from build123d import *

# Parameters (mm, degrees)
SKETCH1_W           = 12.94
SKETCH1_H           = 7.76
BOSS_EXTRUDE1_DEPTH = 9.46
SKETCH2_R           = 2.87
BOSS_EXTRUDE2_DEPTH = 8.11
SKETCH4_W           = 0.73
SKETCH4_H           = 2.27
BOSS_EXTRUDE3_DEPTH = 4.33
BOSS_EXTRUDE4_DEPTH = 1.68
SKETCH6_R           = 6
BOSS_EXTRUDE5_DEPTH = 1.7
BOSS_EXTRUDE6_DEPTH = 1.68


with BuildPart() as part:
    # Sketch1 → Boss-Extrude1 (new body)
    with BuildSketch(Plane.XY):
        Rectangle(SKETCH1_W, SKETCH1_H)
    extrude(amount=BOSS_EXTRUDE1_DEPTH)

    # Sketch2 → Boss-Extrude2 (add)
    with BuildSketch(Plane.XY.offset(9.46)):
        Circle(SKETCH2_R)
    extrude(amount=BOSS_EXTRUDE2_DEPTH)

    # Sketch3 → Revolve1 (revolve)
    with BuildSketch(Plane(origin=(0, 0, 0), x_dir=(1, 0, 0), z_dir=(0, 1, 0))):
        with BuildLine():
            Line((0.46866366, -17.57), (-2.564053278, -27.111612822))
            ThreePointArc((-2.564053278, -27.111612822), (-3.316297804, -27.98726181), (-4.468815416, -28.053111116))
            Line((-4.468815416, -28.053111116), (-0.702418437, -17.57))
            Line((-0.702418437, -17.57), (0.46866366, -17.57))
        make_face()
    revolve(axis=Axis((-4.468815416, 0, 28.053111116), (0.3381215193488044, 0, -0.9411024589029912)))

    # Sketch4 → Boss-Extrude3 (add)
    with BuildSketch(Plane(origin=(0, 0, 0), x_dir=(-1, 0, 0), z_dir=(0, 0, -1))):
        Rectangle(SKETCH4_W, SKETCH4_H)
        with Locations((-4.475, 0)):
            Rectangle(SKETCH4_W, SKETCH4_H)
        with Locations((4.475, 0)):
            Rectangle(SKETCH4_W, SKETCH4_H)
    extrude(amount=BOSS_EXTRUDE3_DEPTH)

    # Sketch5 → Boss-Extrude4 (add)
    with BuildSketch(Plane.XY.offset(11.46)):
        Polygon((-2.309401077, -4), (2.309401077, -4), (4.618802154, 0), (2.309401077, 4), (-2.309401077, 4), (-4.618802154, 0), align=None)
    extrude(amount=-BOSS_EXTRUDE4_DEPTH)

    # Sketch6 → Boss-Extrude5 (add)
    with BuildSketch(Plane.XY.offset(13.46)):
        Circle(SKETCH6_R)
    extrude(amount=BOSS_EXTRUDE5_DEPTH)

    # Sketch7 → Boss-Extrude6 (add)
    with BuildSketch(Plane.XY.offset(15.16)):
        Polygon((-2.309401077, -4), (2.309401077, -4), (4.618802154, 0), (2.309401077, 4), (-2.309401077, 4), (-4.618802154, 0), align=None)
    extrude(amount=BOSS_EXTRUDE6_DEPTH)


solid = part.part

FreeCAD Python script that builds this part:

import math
import FreeCAD as App
import Part
import Sketcher

V = App.Vector
Q = App.Units.Quantity

doc = App.newDocument("Part")
body = doc.addObject("PartDesign::Body", "Body")

sketch1 = body.newObject("Sketcher::SketchObject", "Sketch")
sketch1.AttachmentSupport = (doc.getObject("XY_Plane"), [""])
sketch1.MapMode = "FlatFace"
sketch1.addGeometry(Part.LineSegment(V(-6.47, 3.88, 0), V(-6.47, -3.88, 0)), False)
sketch1.addGeometry(Part.LineSegment(V(-6.47, -3.88, 0), V(6.47, -3.88, 0)), False)
sketch1.addGeometry(Part.LineSegment(V(6.47, -3.88, 0), V(6.47, 3.88, 0)), False)
sketch1.addGeometry(Part.LineSegment(V(6.47, 3.88, 0), V(-6.47, 3.88, 0)), False)
sketch1.addConstraint(Sketcher.Constraint("Coincident", 0, 2, 1, 1))
sketch1.addConstraint(Sketcher.Constraint("Coincident", 1, 2, 2, 1))
sketch1.addConstraint(Sketcher.Constraint("Coincident", 2, 2, 3, 1))
sketch1.addConstraint(Sketcher.Constraint("Coincident", 3, 2, 0, 1))
sketch1.addConstraint(Sketcher.Constraint("Vertical", 0))
sketch1.addConstraint(Sketcher.Constraint("Horizontal", 1))
sketch1.addConstraint(Sketcher.Constraint("Vertical", 2))
sketch1.addConstraint(Sketcher.Constraint("Horizontal", 3))
sketch1.addConstraint(Sketcher.Constraint("Symmetric", 0, 2, 2, 2, -1, 1))
sketch1.addConstraint(Sketcher.Constraint("DistanceX", 1, 1, 1, 2, Q("12.94 mm")))
sketch1.addConstraint(Sketcher.Constraint("DistanceY", 0, 2, 0, 1, Q("7.76 mm")))
pad1 = body.newObject("PartDesign::Pad", "Pad")
pad1.Profile = sketch1
pad1.Length = 9.46

sketch2 = body.newObject("Sketcher::SketchObject", "Sketch001")
sketch2.AttachmentSupport = (doc.getObject("XY_Plane"), [""])
sketch2.MapMode = "FlatFace"
sketch2.AttachmentOffset = App.Placement(V(0, 0, 9.46), App.Rotation())
sketch2.addGeometry(Part.Circle(V(0, 0, 0), V(0, 0, 1), 2.87), False)
sketch2.addConstraint(Sketcher.Constraint("Coincident", 0, 3, -1, 1))
sketch2.addConstraint(Sketcher.Constraint("Diameter", 0, Q("5.74 mm")))
pad2 = body.newObject("PartDesign::Pad", "Pad001")
pad2.Profile = sketch2
pad2.Length = 8.11

sketch3 = body.newObject("Sketcher::SketchObject", "Sketch002")
sketch3.AttachmentSupport = (doc.getObject("XZ_Plane"), [""])
sketch3.MapMode = "FlatFace"
sketch3.addGeometry(Part.LineSegment(V(-2.564053, 27.111613, 0), V(0.468664, 17.57, 0)), False)
sketch3.addGeometry(Part.LineSegment(V(0.468664, 17.57, 0), V(-0.702418, 17.57, 0)), False)
sketch3.addGeometry(Part.LineSegment(V(-0.702418, 17.57, 0), V(-4.468815, 28.053111, 0)), False)
sketch3.addGeometry(Part.ArcOfCircle(Part.Circle(V(-3.97, 26.664745, 0), V(0, 0, 1), 1.475255), math.radians(17.632397), math.radians(109.762468)), False)
sketch3.addGeometry(Part.LineSegment(V(-4.468815, 28.053111, 0), V(-0.568533, 17.197353, 0)), True)
sketch3.addConstraint(Sketcher.Constraint("Coincident", 0, 2, 1, 1))
sketch3.addConstraint(Sketcher.Constraint("Coincident", 1, 2, 2, 1))
sketch3.addConstraint(Sketcher.Constraint("Coincident", 2, 2, 3, 2))
sketch3.addConstraint(Sketcher.Constraint("Tangent", 3, 1, 0, 1))
sketch3.addConstraint(Sketcher.Constraint("Horizontal", 1))
sketch3.addConstraint(Sketcher.Constraint("Coincident", 4, 1, 2, 2))
sketch3.addConstraint(Sketcher.Constraint("Parallel", 2, 4))
sketch3.addConstraint(Sketcher.Constraint("DistanceX", 3, 3, -1, 1, Q("3.97 mm")))
sketch3.addConstraint(Sketcher.Constraint("DistanceY", -1, 1, 0, 2, Q("17.57 mm")))
sketch3.addConstraint(Sketcher.Constraint("Radius", 3, Q("1.475255 mm")))
sketch3.addConstraint(Sketcher.Constraint("DistanceY", 3, 1, 2, 2, Q("0.941498 mm")))
sketch3.addConstraint(Sketcher.Constraint("Distance", 0, Q("10.01198 mm")))
sketch3.addConstraint(Sketcher.Constraint("Distance", 2, Q("11.139182 mm")))
sketch3.addConstraint(Sketcher.Constraint("Distance", 4, Q("11.53515 mm")))
sketch3.addConstraint(Sketcher.Constraint("DistanceX", 1, 2, 1, 1, Q("1.171082 mm")))
revolution = body.newObject("PartDesign::Revolution", "Revolution")
revolution.Profile = sketch3
revolution.ReferenceAxis = (sketch3, ["Axis0"])
revolution.Angle = 360

sketch4 = body.newObject("Sketcher::SketchObject", "Sketch003")
sketch4.AttachmentSupport = (doc.getObject("XY_Plane"), [""])
sketch4.MapMode = "FlatFace"
sketch4.addGeometry(Part.LineSegment(V(0.365, 1.135, 0), V(0.365, -1.135, 0)), False)
sketch4.addGeometry(Part.LineSegment(V(0.365, -1.135, 0), V(-0.365, -1.135, 0)), False)
sketch4.addGeometry(Part.LineSegment(V(-0.365, -1.135, 0), V(-0.365, 1.135, 0)), False)
sketch4.addGeometry(Part.LineSegment(V(-0.365, 1.135, 0), V(0.365, 1.135, 0)), False)
sketch4.addGeometry(Part.LineSegment(V(4.84, 1.135, 0), V(4.84, -1.135, 0)), False)
sketch4.addGeometry(Part.LineSegment(V(4.84, -1.135, 0), V(4.11, -1.135, 0)), False)
sketch4.addGeometry(Part.LineSegment(V(4.11, -1.135, 0), V(4.11, 1.135, 0)), False)
sketch4.addGeometry(Part.LineSegment(V(4.11, 1.135, 0), V(4.84, 1.135, 0)), False)
sketch4.addGeometry(Part.LineSegment(V(-4.11, 1.135, 0), V(-4.11, -1.135, 0)), False)
sketch4.addGeometry(Part.LineSegment(V(-4.11, -1.135, 0), V(-4.84, -1.135, 0)), False)
sketch4.addGeometry(Part.LineSegment(V(-4.84, -1.135, 0), V(-4.84, 1.135, 0)), False)
sketch4.addGeometry(Part.LineSegment(V(-4.84, 1.135, 0), V(-4.11, 1.135, 0)), False)
sketch4.addConstraint(Sketcher.Constraint("Coincident", 0, 2, 1, 1))
sketch4.addConstraint(Sketcher.Constraint("Coincident", 1, 2, 2, 1))
sketch4.addConstraint(Sketcher.Constraint("Coincident", 2, 2, 3, 1))
sketch4.addConstraint(Sketcher.Constraint("Coincident", 3, 2, 0, 1))
sketch4.addConstraint(Sketcher.Constraint("Coincident", 4, 2, 5, 1))
sketch4.addConstraint(Sketcher.Constraint("Coincident", 5, 2, 6, 1))
sketch4.addConstraint(Sketcher.Constraint("Coincident", 6, 2, 7, 1))
sketch4.addConstraint(Sketcher.Constraint("Coincident", 7, 2, 4, 1))
sketch4.addConstraint(Sketcher.Constraint("Coincident", 8, 2, 9, 1))
sketch4.addConstraint(Sketcher.Constraint("Coincident", 9, 2, 10, 1))
sketch4.addConstraint(Sketcher.Constraint("Coincident", 10, 2, 11, 1))
sketch4.addConstraint(Sketcher.Constraint("Coincident", 11, 2, 8, 1))
sketch4.addConstraint(Sketcher.Constraint("Vertical", 0))
sketch4.addConstraint(Sketcher.Constraint("Horizontal", 1))
sketch4.addConstraint(Sketcher.Constraint("Vertical", 2))
sketch4.addConstraint(Sketcher.Constraint("Horizontal", 3))
sketch4.addConstraint(Sketcher.Constraint("Vertical", 4))
sketch4.addConstraint(Sketcher.Constraint("Horizontal", 5))
sketch4.addConstraint(Sketcher.Constraint("Vertical", 6))
sketch4.addConstraint(Sketcher.Constraint("Horizontal", 7))
sketch4.addConstraint(Sketcher.Constraint("Vertical", 8))
sketch4.addConstraint(Sketcher.Constraint("Horizontal", 9))
sketch4.addConstraint(Sketcher.Constraint("Vertical", 10))
sketch4.addConstraint(Sketcher.Constraint("Horizontal", 11))
sketch4.addConstraint(Sketcher.Constraint("Symmetric", 0, 2, 2, 2, -1, 1))
sketch4.addConstraint(Sketcher.Constraint("Symmetric", 6, 2, 8, 2, -1, 1))
sketch4.addConstraint(Sketcher.Constraint("Symmetric", 4, 2, 10, 2, -1, 1))
sketch4.addConstraint(Sketcher.Constraint("Horizontal", 1, 2, 4, 2))
sketch4.addConstraint(Sketcher.Constraint("Horizontal", 3, 2, 6, 2))
sketch4.addConstraint(Sketcher.Constraint("Equal", 3, 5))
sketch4.addConstraint(Sketcher.Constraint("DistanceX", 1, 2, 1, 1, Q("0.73 mm")))
sketch4.addConstraint(Sketcher.Constraint("DistanceY", 0, 2, 0, 1, Q("2.27 mm")))
sketch4.addConstraint(Sketcher.Constraint("DistanceX", -1, 1, 4, 2, Q("4.84 mm")))
pad3 = body.newObject("PartDesign::Pad", "Pad002")
pad3.Profile = sketch4
pad3.Length = 4.33
pad3.Reversed = True

sketch5 = body.newObject("Sketcher::SketchObject", "Sketch004")
sketch5.AttachmentSupport = (doc.getObject("XY_Plane"), [""])
sketch5.MapMode = "FlatFace"
sketch5.AttachmentOffset = App.Placement(V(0, 0, 11.46), App.Rotation())
sketch5.addGeometry(Part.LineSegment(V(-2.309401, -4, 0), V(2.309401, -4, 0)), False)
sketch5.addGeometry(Part.LineSegment(V(2.309401, -4, 0), V(4.618802, 0, 0)), False)
sketch5.addGeometry(Part.LineSegment(V(4.618802, 0, 0), V(2.309401, 4, 0)), False)
sketch5.addGeometry(Part.LineSegment(V(2.309401, 4, 0), V(-2.309401, 4, 0)), False)
sketch5.addGeometry(Part.LineSegment(V(-2.309401, 4, 0), V(-4.618802, 0, 0)), False)
sketch5.addGeometry(Part.LineSegment(V(-4.618802, 0, 0), V(-2.309401, -4, 0)), False)
sketch5.addConstraint(Sketcher.Constraint("Coincident", 0, 2, 1, 1))
sketch5.addConstraint(Sketcher.Constraint("Coincident", 1, 2, 2, 1))
sketch5.addConstraint(Sketcher.Constraint("Coincident", 2, 2, 3, 1))
sketch5.addConstraint(Sketcher.Constraint("Coincident", 3, 2, 4, 1))
sketch5.addConstraint(Sketcher.Constraint("Coincident", 4, 2, 5, 1))
sketch5.addConstraint(Sketcher.Constraint("Coincident", 5, 2, 0, 1))
sketch5.addConstraint(Sketcher.Constraint("Horizontal", 0))
sketch5.addConstraint(Sketcher.Constraint("Horizontal", 3))
sketch5.addConstraint(Sketcher.Constraint("Symmetric", 0, 2, 3, 2, -1, 1))
sketch5.addConstraint(Sketcher.Constraint("Symmetric", 1, 2, 4, 2, -1, 1))
sketch5.addConstraint(Sketcher.Constraint("PointOnObject", 1, 2, -1))
sketch5.addConstraint(Sketcher.Constraint("Parallel", 2, 5))
sketch5.addConstraint(Sketcher.Constraint("Vertical", 0, 2, 2, 2))
sketch5.addConstraint(Sketcher.Constraint("Angle", 1, Q("60 deg")))
sketch5.addConstraint(Sketcher.Constraint("DistanceY", 0, 2, -1, 1, Q("4 mm")))
sketch5.addConstraint(Sketcher.Constraint("DistanceX", -1, 1, 0, 2, Q("2.309401 mm")))
pad4 = body.newObject("PartDesign::Pad", "Pad003")
pad4.Profile = sketch5
pad4.Length = 1.68
pad4.Reversed = True

sketch6 = body.newObject("Sketcher::SketchObject", "Sketch005")
sketch6.AttachmentSupport = (doc.getObject("XY_Plane"), [""])
sketch6.MapMode = "FlatFace"
sketch6.AttachmentOffset = App.Placement(V(0, 0, 13.46), App.Rotation())
sketch6.addGeometry(Part.Circle(V(0, 0, 0), V(0, 0, 1), 6), False)
sketch6.addConstraint(Sketcher.Constraint("Coincident", 0, 3, -1, 1))
sketch6.addConstraint(Sketcher.Constraint("Diameter", 0, Q("12 mm")))
pad5 = body.newObject("PartDesign::Pad", "Pad004")
pad5.Profile = sketch6
pad5.Length = 1.7

sketch7 = body.newObject("Sketcher::SketchObject", "Sketch006")
sketch7.AttachmentSupport = (doc.getObject("XY_Plane"), [""])
sketch7.MapMode = "FlatFace"
sketch7.AttachmentOffset = App.Placement(V(0, 0, 15.16), App.Rotation())
sketch7.addGeometry(Part.LineSegment(V(-2.309401, -4, 0), V(2.309401, -4, 0)), False)
sketch7.addGeometry(Part.LineSegment(V(2.309401, -4, 0), V(4.618802, 0, 0)), False)
sketch7.addGeometry(Part.LineSegment(V(4.618802, 0, 0), V(2.309401, 4, 0)), False)
sketch7.addGeometry(Part.LineSegment(V(2.309401, 4, 0), V(-2.309401, 4, 0)), False)
sketch7.addGeometry(Part.LineSegment(V(-2.309401, 4, 0), V(-4.618802, 0, 0)), False)
sketch7.addGeometry(Part.LineSegment(V(-4.618802, 0, 0), V(-2.309401, -4, 0)), False)
sketch7.addConstraint(Sketcher.Constraint("Coincident", 0, 2, 1, 1))
sketch7.addConstraint(Sketcher.Constraint("Coincident", 1, 2, 2, 1))
sketch7.addConstraint(Sketcher.Constraint("Coincident", 2, 2, 3, 1))
sketch7.addConstraint(Sketcher.Constraint("Coincident", 3, 2, 4, 1))
sketch7.addConstraint(Sketcher.Constraint("Coincident", 4, 2, 5, 1))
sketch7.addConstraint(Sketcher.Constraint("Coincident", 5, 2, 0, 1))
sketch7.addConstraint(Sketcher.Constraint("Horizontal", 0))
sketch7.addConstraint(Sketcher.Constraint("Horizontal", 3))
sketch7.addConstraint(Sketcher.Constraint("Symmetric", 0, 2, 3, 2, -1, 1))
sketch7.addConstraint(Sketcher.Constraint("Symmetric", 1, 2, 4, 2, -1, 1))
sketch7.addConstraint(Sketcher.Constraint("PointOnObject", 1, 2, -1))
sketch7.addConstraint(Sketcher.Constraint("Parallel", 2, 5))
sketch7.addConstraint(Sketcher.Constraint("Vertical", 0, 2, 2, 2))
sketch7.addConstraint(Sketcher.Constraint("Angle", 1, Q("60 deg")))
sketch7.addConstraint(Sketcher.Constraint("DistanceY", 0, 2, -1, 1, Q("4 mm")))
sketch7.addConstraint(Sketcher.Constraint("DistanceX", -1, 1, 0, 2, Q("2.309401 mm")))
pad6 = body.newObject("PartDesign::Pad", "Pad005")
pad6.Profile = sketch7
pad6.Length = 1.68

doc.recompute()
